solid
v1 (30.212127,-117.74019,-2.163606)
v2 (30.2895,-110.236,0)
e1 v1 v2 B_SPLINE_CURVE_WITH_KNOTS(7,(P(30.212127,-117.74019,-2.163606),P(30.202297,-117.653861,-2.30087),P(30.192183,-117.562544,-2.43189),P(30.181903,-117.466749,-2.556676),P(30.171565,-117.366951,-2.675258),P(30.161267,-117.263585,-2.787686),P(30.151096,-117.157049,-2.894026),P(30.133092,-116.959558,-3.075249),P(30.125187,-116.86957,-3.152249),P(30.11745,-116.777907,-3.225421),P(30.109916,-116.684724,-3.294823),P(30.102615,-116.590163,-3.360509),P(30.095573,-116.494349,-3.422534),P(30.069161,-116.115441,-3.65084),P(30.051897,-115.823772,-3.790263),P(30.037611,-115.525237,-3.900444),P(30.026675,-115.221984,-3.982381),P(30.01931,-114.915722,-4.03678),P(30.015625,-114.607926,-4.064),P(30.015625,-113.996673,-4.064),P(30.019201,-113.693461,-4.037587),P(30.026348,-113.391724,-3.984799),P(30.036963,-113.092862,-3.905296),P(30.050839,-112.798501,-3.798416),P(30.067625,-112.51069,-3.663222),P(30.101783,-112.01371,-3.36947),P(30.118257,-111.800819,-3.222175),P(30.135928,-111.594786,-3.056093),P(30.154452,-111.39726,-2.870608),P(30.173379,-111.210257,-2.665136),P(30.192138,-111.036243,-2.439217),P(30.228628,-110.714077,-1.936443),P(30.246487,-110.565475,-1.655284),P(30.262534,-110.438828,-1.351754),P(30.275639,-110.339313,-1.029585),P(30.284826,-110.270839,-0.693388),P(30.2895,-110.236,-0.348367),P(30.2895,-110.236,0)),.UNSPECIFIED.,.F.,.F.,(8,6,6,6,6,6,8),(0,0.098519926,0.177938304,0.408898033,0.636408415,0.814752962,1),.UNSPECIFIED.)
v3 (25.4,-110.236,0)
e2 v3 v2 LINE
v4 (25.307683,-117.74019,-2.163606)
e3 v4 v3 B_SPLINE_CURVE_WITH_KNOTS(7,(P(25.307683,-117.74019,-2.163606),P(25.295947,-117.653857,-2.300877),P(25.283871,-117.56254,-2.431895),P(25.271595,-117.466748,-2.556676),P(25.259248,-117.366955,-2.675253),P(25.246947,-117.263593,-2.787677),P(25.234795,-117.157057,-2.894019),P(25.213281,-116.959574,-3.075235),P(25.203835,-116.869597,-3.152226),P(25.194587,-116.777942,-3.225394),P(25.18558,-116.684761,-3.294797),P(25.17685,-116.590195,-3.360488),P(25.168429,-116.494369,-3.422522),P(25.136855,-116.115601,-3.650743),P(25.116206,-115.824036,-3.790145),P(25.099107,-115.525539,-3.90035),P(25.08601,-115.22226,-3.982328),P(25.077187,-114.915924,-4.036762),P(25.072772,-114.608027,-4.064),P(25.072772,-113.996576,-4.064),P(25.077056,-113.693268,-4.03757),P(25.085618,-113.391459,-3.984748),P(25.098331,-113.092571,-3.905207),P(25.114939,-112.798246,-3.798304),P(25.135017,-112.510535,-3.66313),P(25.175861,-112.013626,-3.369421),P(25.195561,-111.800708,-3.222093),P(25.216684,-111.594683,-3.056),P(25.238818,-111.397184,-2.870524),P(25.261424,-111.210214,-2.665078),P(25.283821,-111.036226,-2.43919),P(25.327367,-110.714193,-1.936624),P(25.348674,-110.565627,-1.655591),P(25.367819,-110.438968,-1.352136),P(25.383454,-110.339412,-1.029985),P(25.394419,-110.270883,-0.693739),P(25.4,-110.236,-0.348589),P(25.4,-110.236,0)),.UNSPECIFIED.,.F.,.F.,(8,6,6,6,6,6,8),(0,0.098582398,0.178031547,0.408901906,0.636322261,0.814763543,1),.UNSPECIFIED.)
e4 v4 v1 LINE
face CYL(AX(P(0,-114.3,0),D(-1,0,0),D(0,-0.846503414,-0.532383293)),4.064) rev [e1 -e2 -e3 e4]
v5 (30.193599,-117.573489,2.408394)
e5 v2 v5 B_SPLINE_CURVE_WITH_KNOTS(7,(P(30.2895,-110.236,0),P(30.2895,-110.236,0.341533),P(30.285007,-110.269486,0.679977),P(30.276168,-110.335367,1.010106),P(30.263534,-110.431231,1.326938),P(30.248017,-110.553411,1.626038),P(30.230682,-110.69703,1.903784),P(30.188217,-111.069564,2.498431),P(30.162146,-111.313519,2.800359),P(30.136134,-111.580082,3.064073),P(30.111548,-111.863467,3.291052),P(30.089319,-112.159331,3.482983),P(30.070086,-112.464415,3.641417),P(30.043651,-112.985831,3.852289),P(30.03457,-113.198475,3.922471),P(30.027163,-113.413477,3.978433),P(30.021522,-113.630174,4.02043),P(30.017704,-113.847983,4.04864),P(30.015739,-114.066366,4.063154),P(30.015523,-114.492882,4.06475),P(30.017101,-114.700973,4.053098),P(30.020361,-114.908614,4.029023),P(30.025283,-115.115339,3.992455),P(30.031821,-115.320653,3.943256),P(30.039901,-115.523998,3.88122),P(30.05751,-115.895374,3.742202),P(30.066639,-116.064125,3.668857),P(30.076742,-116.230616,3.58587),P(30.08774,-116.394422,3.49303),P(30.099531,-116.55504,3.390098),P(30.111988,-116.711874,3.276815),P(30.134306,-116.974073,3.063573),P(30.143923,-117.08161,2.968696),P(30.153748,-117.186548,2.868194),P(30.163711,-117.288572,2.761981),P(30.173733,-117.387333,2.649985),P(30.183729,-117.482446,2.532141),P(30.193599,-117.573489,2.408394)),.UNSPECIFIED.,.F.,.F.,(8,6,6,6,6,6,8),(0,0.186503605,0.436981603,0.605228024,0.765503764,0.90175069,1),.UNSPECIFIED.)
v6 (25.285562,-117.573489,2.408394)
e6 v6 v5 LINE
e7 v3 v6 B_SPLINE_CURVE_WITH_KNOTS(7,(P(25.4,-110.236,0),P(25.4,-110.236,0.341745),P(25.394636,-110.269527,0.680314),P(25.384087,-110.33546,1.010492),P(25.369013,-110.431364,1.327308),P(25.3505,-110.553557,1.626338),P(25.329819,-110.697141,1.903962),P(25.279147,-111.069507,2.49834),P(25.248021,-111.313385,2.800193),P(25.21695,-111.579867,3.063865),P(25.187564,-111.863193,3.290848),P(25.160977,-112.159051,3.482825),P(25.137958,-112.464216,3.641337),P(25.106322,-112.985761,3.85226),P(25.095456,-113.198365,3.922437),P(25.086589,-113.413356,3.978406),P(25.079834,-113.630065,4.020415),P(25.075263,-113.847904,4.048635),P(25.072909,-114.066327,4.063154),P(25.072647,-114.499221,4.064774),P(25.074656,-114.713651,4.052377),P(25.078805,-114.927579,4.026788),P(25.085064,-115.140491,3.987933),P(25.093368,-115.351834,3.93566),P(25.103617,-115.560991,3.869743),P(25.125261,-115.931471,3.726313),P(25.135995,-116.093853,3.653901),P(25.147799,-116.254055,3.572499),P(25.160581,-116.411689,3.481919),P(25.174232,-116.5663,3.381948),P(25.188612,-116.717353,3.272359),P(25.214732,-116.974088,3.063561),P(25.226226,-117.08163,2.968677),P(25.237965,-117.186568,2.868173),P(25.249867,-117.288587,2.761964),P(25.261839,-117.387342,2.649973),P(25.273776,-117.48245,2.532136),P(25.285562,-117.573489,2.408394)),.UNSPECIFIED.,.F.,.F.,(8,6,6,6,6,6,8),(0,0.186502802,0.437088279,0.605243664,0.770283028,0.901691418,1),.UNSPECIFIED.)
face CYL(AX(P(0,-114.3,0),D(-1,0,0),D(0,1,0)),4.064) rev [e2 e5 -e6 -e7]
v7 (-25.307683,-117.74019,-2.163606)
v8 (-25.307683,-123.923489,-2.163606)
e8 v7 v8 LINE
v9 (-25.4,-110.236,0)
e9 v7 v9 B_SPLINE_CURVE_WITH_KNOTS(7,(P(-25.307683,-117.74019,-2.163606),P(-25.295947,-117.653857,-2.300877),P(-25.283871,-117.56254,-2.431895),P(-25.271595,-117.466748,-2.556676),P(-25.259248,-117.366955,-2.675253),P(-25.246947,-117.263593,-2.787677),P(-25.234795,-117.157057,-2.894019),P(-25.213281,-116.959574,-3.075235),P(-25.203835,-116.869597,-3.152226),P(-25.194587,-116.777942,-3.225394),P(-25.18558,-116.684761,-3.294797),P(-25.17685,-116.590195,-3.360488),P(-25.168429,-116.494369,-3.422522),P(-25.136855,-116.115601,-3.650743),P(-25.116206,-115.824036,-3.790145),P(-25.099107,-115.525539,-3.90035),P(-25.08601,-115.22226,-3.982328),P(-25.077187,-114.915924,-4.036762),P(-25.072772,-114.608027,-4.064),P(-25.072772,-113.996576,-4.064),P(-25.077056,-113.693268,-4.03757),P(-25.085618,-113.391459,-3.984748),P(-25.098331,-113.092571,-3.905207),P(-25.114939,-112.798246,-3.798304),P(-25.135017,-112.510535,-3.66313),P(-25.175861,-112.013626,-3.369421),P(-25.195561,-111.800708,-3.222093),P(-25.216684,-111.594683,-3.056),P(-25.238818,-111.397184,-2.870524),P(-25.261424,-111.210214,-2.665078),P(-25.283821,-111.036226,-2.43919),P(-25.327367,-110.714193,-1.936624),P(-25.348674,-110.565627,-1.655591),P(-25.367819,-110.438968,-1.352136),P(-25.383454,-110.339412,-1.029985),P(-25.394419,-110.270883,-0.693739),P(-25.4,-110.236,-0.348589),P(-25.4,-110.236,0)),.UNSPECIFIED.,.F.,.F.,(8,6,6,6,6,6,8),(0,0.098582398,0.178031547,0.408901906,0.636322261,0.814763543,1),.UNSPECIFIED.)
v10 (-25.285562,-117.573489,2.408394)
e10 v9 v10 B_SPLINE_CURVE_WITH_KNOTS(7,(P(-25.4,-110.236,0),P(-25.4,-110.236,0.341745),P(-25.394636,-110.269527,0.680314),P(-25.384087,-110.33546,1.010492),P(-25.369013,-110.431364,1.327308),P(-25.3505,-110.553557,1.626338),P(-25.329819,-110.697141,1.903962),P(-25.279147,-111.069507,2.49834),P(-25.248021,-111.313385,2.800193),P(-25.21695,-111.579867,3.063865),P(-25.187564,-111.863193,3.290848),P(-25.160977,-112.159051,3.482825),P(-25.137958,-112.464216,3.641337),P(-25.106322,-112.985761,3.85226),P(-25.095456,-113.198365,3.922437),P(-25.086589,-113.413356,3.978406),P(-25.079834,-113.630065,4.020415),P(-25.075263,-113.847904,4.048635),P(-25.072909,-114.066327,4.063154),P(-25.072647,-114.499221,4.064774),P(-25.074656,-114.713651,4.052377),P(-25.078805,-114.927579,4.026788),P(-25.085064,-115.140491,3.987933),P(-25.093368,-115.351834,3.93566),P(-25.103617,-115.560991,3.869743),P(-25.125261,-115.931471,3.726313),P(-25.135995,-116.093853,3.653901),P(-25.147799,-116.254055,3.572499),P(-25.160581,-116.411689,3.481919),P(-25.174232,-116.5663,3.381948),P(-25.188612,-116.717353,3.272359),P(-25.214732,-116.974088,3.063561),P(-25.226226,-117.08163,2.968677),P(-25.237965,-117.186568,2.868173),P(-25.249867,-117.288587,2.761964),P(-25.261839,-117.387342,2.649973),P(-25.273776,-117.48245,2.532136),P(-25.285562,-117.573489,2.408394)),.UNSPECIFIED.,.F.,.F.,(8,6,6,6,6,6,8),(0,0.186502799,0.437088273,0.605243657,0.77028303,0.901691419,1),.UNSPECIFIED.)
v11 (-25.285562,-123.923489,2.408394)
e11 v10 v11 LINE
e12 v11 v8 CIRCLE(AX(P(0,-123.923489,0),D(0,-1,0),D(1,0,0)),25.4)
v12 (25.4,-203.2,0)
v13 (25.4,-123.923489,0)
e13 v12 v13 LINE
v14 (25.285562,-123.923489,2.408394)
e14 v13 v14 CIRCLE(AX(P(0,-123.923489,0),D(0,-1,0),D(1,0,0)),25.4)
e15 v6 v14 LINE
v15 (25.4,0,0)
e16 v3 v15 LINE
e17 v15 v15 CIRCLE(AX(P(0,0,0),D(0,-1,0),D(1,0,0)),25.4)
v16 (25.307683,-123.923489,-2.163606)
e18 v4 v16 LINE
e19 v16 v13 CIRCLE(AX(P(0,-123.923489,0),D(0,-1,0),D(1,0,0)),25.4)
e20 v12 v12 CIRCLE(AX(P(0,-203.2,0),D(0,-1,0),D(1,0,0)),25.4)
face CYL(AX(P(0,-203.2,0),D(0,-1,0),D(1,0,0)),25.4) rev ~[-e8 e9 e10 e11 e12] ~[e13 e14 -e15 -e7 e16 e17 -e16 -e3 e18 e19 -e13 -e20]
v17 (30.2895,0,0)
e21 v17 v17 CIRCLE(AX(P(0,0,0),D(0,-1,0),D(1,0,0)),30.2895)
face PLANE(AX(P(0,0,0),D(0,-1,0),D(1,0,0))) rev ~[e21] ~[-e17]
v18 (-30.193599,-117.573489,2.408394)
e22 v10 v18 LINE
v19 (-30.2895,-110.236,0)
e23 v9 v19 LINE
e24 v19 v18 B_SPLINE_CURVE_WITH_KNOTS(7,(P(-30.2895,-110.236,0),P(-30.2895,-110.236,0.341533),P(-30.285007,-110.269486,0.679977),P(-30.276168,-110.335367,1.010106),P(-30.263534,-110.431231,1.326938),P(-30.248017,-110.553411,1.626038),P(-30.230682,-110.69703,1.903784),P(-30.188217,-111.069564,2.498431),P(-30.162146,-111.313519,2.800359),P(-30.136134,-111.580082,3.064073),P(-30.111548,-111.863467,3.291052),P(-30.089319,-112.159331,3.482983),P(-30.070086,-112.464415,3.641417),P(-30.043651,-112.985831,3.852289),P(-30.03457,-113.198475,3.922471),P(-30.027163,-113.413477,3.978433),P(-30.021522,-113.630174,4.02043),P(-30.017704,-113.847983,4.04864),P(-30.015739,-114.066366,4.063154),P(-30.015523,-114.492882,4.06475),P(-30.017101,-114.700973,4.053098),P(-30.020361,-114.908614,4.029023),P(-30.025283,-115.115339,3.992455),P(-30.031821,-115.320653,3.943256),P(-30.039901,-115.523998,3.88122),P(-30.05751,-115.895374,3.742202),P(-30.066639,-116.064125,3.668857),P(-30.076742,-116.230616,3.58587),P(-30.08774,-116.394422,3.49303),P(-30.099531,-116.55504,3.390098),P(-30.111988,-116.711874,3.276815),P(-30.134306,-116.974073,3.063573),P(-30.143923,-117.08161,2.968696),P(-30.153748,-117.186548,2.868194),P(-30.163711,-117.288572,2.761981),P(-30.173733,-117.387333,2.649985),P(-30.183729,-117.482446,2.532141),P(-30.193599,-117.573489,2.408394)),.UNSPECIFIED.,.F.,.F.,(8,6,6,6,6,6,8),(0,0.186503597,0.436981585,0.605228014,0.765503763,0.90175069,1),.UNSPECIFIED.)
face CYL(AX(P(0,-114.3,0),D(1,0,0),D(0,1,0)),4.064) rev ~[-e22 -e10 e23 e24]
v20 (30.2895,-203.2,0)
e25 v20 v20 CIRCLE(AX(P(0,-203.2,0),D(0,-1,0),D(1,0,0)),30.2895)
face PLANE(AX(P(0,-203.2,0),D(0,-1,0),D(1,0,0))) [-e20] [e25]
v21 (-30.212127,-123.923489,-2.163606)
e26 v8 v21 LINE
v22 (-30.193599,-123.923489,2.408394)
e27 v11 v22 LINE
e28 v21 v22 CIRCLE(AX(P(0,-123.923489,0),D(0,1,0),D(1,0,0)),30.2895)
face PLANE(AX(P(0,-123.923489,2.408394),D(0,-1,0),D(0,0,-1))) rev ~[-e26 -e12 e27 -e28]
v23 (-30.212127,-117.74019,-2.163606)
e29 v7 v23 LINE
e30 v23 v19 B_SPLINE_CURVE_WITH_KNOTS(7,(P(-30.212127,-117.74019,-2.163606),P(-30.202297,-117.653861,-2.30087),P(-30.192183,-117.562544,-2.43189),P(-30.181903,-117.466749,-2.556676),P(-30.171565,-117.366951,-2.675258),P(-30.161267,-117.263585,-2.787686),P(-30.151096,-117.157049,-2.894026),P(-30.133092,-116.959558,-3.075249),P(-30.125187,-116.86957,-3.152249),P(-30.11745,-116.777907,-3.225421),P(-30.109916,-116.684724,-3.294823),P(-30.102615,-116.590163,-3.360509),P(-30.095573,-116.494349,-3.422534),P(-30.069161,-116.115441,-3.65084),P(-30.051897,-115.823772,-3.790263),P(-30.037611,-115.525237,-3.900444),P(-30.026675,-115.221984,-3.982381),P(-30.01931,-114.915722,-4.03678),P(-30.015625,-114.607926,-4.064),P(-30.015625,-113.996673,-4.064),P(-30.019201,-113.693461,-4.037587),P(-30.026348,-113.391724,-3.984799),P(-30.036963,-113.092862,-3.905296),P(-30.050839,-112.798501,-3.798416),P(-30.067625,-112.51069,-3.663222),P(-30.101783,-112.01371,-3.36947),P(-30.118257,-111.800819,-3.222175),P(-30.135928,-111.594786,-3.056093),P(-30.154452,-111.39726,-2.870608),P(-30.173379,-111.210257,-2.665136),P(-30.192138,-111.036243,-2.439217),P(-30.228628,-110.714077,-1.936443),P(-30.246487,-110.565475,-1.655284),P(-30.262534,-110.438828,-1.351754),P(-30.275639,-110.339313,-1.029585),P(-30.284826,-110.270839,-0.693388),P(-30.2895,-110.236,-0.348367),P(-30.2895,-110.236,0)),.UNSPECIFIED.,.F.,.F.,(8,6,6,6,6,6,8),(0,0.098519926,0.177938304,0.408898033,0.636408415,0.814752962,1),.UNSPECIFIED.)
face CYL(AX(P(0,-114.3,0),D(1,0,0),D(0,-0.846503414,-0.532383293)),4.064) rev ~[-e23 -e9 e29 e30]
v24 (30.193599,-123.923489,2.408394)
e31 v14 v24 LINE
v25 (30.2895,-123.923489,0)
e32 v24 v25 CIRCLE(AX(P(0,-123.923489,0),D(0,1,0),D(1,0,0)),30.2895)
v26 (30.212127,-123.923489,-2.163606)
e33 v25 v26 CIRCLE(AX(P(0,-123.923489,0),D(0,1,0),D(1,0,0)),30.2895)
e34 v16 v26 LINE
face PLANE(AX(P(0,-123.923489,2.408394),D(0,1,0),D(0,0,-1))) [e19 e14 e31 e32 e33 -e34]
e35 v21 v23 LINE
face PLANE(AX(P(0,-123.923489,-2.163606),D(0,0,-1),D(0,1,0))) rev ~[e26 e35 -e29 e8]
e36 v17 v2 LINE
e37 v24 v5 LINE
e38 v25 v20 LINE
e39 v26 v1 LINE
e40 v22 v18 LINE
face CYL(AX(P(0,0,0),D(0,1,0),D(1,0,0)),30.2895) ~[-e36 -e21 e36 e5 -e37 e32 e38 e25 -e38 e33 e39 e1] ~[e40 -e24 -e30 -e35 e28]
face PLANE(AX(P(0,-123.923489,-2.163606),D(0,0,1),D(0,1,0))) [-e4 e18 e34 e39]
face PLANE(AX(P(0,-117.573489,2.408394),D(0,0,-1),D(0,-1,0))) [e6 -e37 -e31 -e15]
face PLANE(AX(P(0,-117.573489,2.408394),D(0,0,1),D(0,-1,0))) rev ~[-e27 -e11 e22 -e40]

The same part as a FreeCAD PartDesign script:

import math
import FreeCAD as App
import Part
import Sketcher
Q = App.Units.Quantity

doc = App.newDocument("Part")
params = doc.addObject("Spreadsheet::Sheet", "Params")
for row, (alias, value) in enumerate([
    ("sketch1_diameter", "2.385 in"),
    ("pad1_length", "8 in"),
    ("sketch2_diameter", "2 in"),
    ("sketch3_radius", "0.16 in"),
    ("sketch3_width", "0.25 in"),
    ("sketch3_height", "0.18 in"),
], start=1):
    params.set(f"A{row}", alias)
    params.set(f"B{row}", "=" + value)
    params.setAlias(f"B{row}", alias)

body = doc.addObject("PartDesign::Body", "Body")

# Sketch on XZ plane
sketch1 = body.newObject("Sketcher::SketchObject", "Sketch")
sketch1.AttachmentSupport = (doc.getObject("XZ_Plane"), [""])
sketch1.MapMode = "FlatFace"
sketch1.addGeometry(Part.Circle(App.Vector(0, 0, 0), App.Vector(0, 0, 1), 30), False)
sketch1.addConstraint([
    Sketcher.Constraint("Coincident", 0, 3, -1, 1),
    Sketcher.Constraint("Diameter", 0, Q("2.385 in")),
])
sketch1.setExpression("Constraints[1]", "Params.sketch1_diameter")
pad1 = body.newObject("PartDesign::Pad", "Pad")
pad1.Profile = sketch1
pad1.setExpression("Length", "Params.pad1_length")

# Sketch on XZ plane
sketch2 = body.newObject("Sketcher::SketchObject", "Sketch001")
sketch2.AttachmentSupport = (doc.getObject("XZ_Plane"), [""])
sketch2.MapMode = "FlatFace"
sketch2.AttachmentOffset = App.Placement(App.Vector(0, 0, 8 * 25.4), App.Rotation())
sketch2.addGeometry(Part.Circle(App.Vector(0, 0, 0), App.Vector(0, 0, 1), 25), False)
sketch2.addConstraint([
    Sketcher.Constraint("Coincident", 0, 3, -1, 1),
    Sketcher.Constraint("Diameter", 0, Q("2 in")),
])
sketch2.setExpression("Constraints[1]", "Params.sketch2_diameter")
pocket1 = body.newObject("PartDesign::Pocket", "Pocket")
pocket1.Profile = sketch2
pocket1.Type = "ThroughAll"

# Sketch on YZ plane
sketch3 = body.newObject("Sketcher::SketchObject", "Sketch002")
sketch3.AttachmentSupport = (doc.getObject("YZ_Plane"), [""])
sketch3.MapMode = "FlatFace"
sketch3.addGeometry([
    Part.ArcOfCircle(Part.Circle(App.Vector(-114.3, 0, 0), App.Vector(0, 0, 1), 4.1), math.radians(-148), math.radians(0)),  # 0
    Part.ArcOfCircle(Part.Circle(App.Vector(-114.3, 0, 0), App.Vector(0, 0, 1), 4.1), math.radians(0), math.radians(144)),  # 1
    Part.LineSegment(App.Vector(-117.6, 2.4, 0), App.Vector(-123.9, 2.4, 0)),  # 2
    Part.LineSegment(App.Vector(-123.9, 2.4, 0), App.Vector(-123.9, -2.2, 0)),  # 3
    Part.LineSegment(App.Vector(-123.9, -2.2, 0), App.Vector(-117.7, -2.2, 0)),  # 4
], False)
sketch3.addConstraint([
    Sketcher.Constraint("Tangent", 0, 2, 1, 1),
    Sketcher.Constraint("Coincident", 1, 2, 2, 1),
    Sketcher.Constraint("Coincident", 2, 2, 3, 1),
    Sketcher.Constraint("Coincident", 3, 2, 4, 1),
    Sketcher.Constraint("Coincident", 4, 2, 0, 1),
    Sketcher.Constraint("Horizontal", 2),
    Sketcher.Constraint("Vertical", 3),
    Sketcher.Constraint("Horizontal", 4),
    Sketcher.Constraint("Equal", 0, 1),
    Sketcher.Constraint("PointOnObject", 0, 3, -1),
    Sketcher.Constraint("PointOnObject", 0, 2, -1),
    Sketcher.Constraint("Radius", 0, Q("0.16 in")),
    Sketcher.Constraint("DistanceX", 2, 2, 2, 1, Q("0.25 in")),
    Sketcher.Constraint("DistanceY", 3, 2, 3, 1, Q("0.18 in")),
    Sketcher.Constraint("DistanceX", 0, 3, -1, 1, Q("4.5 in")),
    Sketcher.Constraint("DistanceX", 4, 1, 4, 2, 6.1833),
])
sketch3.setExpression("Constraints[11]", "Params.sketch3_radius")
sketch3.setExpression("Constraints[12]", "Params.sketch3_width")
sketch3.setExpression("Constraints[13]", "Params.sketch3_height")
pocket2 = body.newObject("PartDesign::Pocket", "Pocket001")
pocket2.Profile = sketch3
pocket2.Type = "ThroughAll"
pocket2.Midplane = True

doc.recompute()
